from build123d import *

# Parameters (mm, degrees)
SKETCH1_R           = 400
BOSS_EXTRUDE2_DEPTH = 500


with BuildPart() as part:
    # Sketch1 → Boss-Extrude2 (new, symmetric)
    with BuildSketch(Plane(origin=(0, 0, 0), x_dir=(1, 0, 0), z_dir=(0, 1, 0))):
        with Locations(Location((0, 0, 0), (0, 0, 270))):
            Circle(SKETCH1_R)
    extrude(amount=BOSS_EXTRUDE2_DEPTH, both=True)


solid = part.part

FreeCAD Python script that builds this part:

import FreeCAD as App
import Part
import Sketcher

doc = App.newDocument("Part")
params = doc.addObject("Spreadsheet::Sheet", "Params")
for row, (alias, value) in enumerate([
    ("sketch1_diameter", "800 mm"),
    ("pad1_length", "1000 mm"),
], start=1):
    params.set(f"A{row}", alias)
    params.set(f"B{row}", "=" + value)
    params.setAlias(f"B{row}", alias)

body = doc.addObject("PartDesign::Body", "Body")

sketch1 = body.newObject("Sketcher::SketchObject", "Sketch")
sketch1.AttachmentSupport = (doc.getObject("XZ_Plane"), [""])
sketch1.MapMode = "FlatFace"
sketch1.addGeometry(Part.Circle(App.Vector(0, 0, 0), App.Vector(0, 0, 1), 400), False)
sketch1.addConstraint([
    Sketcher.Constraint("Coincident", 0, 3, -1, 1),
    Sketcher.Constraint("Diameter", 0, 800.0),
])
sketch1.setExpression("Constraints[1]", "Params.sketch1_diameter")
pad1 = body.newObject("PartDesign::Pad", "Pad")
pad1.Profile = sketch1
pad1.setExpression("Length", "Params.pad1_length")
pad1.Midplane = True

doc.recompute()
